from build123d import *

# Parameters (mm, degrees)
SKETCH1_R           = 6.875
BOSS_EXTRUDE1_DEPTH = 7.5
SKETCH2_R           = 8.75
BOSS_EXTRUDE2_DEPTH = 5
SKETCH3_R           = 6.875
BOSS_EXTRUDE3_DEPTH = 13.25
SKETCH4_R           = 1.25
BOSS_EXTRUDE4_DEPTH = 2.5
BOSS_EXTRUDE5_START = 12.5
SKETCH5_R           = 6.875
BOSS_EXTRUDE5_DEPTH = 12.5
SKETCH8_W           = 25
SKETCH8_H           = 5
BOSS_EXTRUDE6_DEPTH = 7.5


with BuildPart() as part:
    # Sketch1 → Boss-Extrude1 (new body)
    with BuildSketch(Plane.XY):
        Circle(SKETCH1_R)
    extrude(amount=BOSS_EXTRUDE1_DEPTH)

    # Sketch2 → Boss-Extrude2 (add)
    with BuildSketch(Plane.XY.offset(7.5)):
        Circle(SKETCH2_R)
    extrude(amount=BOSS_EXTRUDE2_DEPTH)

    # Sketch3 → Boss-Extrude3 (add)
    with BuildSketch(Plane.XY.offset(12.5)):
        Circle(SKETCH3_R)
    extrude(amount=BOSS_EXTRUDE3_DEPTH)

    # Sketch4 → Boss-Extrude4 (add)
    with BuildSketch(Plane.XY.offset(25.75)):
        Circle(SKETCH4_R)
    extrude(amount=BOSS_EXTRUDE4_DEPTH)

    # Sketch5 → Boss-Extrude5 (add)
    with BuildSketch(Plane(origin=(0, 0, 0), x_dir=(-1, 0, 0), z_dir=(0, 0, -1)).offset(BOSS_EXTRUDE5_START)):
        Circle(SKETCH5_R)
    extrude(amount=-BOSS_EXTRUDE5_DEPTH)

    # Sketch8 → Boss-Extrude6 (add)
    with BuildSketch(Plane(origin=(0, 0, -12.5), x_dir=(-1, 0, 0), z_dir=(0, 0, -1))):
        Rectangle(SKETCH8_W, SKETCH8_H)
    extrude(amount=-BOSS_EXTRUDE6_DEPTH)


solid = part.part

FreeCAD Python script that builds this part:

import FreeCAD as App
import Part
import Sketcher


def add_polygon(sketch, points):
    """Adds a closed chain of lines whose ends are joined by coincident constraints."""
    first, n = sketch.GeometryCount, len(points)
    for a, b in zip(points, points[1:] + points[:1]):
        sketch.addGeometry(Part.LineSegment(App.Vector(*a, 0), App.Vector(*b, 0)), False)
    for i in range(n):
        sketch.addConstraint(Sketcher.Constraint("Coincident", first + i, 2, first + (i + 1) % n, 1))

doc = App.newDocument("Part")
body = doc.addObject("PartDesign::Body", "Body")

# Sketch on XY plane
sketch1 = body.newObject("Sketcher::SketchObject", "Sketch")
sketch1.AttachmentSupport = (doc.getObject("XY_Plane"), [""])
sketch1.MapMode = "FlatFace"
sketch1.addGeometry(Part.Circle(App.Vector(0, 0, 0), App.Vector(0, 0, 1), 7), False)
sketch1.addConstraint([
    Sketcher.Constraint("Coincident", 0, 3, -1, 1),
    Sketcher.Constraint("Diameter", 0, 13.75),
])
pad1 = body.newObject("PartDesign::Pad", "Pad")
pad1.Profile = sketch1
pad1.Length = 7.5

# Sketch on XY plane
sketch2 = body.newObject("Sketcher::SketchObject", "Sketch001")
sketch2.AttachmentSupport = (doc.getObject("XY_Plane"), [""])
sketch2.MapMode = "FlatFace"
sketch2.AttachmentOffset = App.Placement(App.Vector(0, 0, 7.5), App.Rotation())
sketch2.addGeometry(Part.Circle(App.Vector(0, 0, 0), App.Vector(0, 0, 1), 9), False)
sketch2.addConstraint([
    Sketcher.Constraint("Coincident", 0, 3, -1, 1),
    Sketcher.Constraint("Diameter", 0, 17.5),
])
pad2 = body.newObject("PartDesign::Pad", "Pad001")
pad2.Profile = sketch2
pad2.Length = 5

# Sketch on XY plane
sketch3 = body.newObject("Sketcher::SketchObject", "Sketch002")
sketch3.AttachmentSupport = (doc.getObject("XY_Plane"), [""])
sketch3.MapMode = "FlatFace"
sketch3.AttachmentOffset = App.Placement(App.Vector(0, 0, 12.5), App.Rotation())
sketch3.addGeometry(Part.Circle(App.Vector(0, 0, 0), App.Vector(0, 0, 1), 7), False)
sketch3.addConstraint([
    Sketcher.Constraint("Coincident", 0, 3, -1, 1),
    Sketcher.Constraint("Diameter", 0, 13.75),
])
pad3 = body.newObject("PartDesign::Pad", "Pad002")
pad3.Profile = sketch3
pad3.Length = 13.25

# Sketch on XY plane
sketch4 = body.newObject("Sketcher::SketchObject", "Sketch003")
sketch4.AttachmentSupport = (doc.getObject("XY_Plane"), [""])
sketch4.MapMode = "FlatFace"
sketch4.AttachmentOffset = App.Placement(App.Vector(0, 0, 25.75), App.Rotation())
sketch4.addGeometry(Part.Circle(App.Vector(0, 0, 0), App.Vector(0, 0, 1), 1.2), False)
sketch4.addConstraint([
    Sketcher.Constraint("Coincident", 0, 3, -1, 1),
    Sketcher.Constraint("Diameter", 0, 2.5),
])
pad4 = body.newObject("PartDesign::Pad", "Pad003")
pad4.Profile = sketch4
pad4.Length = 2.5

# Sketch on XY plane
sketch5 = body.newObject("Sketcher::SketchObject", "Sketch004")
sketch5.AttachmentSupport = (doc.getObject("XY_Plane"), [""])
sketch5.MapMode = "FlatFace"
sketch5.AttachmentOffset = App.Placement(App.Vector(0, 0, -12.5), App.Rotation())
sketch5.addGeometry(Part.Circle(App.Vector(0, 0, 0), App.Vector(0, 0, 1), 7), False)
sketch5.addConstraint([
    Sketcher.Constraint("Coincident", 0, 3, -1, 1),
    Sketcher.Constraint("Diameter", 0, 13.75),
])
pad5 = body.newObject("PartDesign::Pad", "Pad004")
pad5.Profile = sketch5
pad5.Length = 12.5

# Sketch on XY plane
sketch6 = body.newObject("Sketcher::SketchObject", "Sketch005")
sketch6.AttachmentSupport = (doc.getObject("XY_Plane"), [""])
sketch6.MapMode = "FlatFace"
sketch6.AttachmentOffset = App.Placement(App.Vector(0, 0, -12.5), App.Rotation())
add_polygon(sketch6, [(12, 2), (12, -2), (-12, -2), (-12, 2)])  # lines 0-3
sketch6.addConstraint([
    Sketcher.Constraint("Vertical", 0),
    Sketcher.Constraint("Horizontal", 1),
    Sketcher.Constraint("Vertical", 2),
    Sketcher.Constraint("Horizontal", 3),
    Sketcher.Constraint("Symmetric", 0, 2, 2, 2, -1, 1),
    Sketcher.Constraint("DistanceX", 1, 2, 1, 1, 25.0),
    Sketcher.Constraint("DistanceY", 0, 2, 0, 1, 5.0),
])
pad6 = body.newObject("PartDesign::Pad", "Pad005")
pad6.Profile = sketch6
pad6.Length = 7.5

doc.recompute()
